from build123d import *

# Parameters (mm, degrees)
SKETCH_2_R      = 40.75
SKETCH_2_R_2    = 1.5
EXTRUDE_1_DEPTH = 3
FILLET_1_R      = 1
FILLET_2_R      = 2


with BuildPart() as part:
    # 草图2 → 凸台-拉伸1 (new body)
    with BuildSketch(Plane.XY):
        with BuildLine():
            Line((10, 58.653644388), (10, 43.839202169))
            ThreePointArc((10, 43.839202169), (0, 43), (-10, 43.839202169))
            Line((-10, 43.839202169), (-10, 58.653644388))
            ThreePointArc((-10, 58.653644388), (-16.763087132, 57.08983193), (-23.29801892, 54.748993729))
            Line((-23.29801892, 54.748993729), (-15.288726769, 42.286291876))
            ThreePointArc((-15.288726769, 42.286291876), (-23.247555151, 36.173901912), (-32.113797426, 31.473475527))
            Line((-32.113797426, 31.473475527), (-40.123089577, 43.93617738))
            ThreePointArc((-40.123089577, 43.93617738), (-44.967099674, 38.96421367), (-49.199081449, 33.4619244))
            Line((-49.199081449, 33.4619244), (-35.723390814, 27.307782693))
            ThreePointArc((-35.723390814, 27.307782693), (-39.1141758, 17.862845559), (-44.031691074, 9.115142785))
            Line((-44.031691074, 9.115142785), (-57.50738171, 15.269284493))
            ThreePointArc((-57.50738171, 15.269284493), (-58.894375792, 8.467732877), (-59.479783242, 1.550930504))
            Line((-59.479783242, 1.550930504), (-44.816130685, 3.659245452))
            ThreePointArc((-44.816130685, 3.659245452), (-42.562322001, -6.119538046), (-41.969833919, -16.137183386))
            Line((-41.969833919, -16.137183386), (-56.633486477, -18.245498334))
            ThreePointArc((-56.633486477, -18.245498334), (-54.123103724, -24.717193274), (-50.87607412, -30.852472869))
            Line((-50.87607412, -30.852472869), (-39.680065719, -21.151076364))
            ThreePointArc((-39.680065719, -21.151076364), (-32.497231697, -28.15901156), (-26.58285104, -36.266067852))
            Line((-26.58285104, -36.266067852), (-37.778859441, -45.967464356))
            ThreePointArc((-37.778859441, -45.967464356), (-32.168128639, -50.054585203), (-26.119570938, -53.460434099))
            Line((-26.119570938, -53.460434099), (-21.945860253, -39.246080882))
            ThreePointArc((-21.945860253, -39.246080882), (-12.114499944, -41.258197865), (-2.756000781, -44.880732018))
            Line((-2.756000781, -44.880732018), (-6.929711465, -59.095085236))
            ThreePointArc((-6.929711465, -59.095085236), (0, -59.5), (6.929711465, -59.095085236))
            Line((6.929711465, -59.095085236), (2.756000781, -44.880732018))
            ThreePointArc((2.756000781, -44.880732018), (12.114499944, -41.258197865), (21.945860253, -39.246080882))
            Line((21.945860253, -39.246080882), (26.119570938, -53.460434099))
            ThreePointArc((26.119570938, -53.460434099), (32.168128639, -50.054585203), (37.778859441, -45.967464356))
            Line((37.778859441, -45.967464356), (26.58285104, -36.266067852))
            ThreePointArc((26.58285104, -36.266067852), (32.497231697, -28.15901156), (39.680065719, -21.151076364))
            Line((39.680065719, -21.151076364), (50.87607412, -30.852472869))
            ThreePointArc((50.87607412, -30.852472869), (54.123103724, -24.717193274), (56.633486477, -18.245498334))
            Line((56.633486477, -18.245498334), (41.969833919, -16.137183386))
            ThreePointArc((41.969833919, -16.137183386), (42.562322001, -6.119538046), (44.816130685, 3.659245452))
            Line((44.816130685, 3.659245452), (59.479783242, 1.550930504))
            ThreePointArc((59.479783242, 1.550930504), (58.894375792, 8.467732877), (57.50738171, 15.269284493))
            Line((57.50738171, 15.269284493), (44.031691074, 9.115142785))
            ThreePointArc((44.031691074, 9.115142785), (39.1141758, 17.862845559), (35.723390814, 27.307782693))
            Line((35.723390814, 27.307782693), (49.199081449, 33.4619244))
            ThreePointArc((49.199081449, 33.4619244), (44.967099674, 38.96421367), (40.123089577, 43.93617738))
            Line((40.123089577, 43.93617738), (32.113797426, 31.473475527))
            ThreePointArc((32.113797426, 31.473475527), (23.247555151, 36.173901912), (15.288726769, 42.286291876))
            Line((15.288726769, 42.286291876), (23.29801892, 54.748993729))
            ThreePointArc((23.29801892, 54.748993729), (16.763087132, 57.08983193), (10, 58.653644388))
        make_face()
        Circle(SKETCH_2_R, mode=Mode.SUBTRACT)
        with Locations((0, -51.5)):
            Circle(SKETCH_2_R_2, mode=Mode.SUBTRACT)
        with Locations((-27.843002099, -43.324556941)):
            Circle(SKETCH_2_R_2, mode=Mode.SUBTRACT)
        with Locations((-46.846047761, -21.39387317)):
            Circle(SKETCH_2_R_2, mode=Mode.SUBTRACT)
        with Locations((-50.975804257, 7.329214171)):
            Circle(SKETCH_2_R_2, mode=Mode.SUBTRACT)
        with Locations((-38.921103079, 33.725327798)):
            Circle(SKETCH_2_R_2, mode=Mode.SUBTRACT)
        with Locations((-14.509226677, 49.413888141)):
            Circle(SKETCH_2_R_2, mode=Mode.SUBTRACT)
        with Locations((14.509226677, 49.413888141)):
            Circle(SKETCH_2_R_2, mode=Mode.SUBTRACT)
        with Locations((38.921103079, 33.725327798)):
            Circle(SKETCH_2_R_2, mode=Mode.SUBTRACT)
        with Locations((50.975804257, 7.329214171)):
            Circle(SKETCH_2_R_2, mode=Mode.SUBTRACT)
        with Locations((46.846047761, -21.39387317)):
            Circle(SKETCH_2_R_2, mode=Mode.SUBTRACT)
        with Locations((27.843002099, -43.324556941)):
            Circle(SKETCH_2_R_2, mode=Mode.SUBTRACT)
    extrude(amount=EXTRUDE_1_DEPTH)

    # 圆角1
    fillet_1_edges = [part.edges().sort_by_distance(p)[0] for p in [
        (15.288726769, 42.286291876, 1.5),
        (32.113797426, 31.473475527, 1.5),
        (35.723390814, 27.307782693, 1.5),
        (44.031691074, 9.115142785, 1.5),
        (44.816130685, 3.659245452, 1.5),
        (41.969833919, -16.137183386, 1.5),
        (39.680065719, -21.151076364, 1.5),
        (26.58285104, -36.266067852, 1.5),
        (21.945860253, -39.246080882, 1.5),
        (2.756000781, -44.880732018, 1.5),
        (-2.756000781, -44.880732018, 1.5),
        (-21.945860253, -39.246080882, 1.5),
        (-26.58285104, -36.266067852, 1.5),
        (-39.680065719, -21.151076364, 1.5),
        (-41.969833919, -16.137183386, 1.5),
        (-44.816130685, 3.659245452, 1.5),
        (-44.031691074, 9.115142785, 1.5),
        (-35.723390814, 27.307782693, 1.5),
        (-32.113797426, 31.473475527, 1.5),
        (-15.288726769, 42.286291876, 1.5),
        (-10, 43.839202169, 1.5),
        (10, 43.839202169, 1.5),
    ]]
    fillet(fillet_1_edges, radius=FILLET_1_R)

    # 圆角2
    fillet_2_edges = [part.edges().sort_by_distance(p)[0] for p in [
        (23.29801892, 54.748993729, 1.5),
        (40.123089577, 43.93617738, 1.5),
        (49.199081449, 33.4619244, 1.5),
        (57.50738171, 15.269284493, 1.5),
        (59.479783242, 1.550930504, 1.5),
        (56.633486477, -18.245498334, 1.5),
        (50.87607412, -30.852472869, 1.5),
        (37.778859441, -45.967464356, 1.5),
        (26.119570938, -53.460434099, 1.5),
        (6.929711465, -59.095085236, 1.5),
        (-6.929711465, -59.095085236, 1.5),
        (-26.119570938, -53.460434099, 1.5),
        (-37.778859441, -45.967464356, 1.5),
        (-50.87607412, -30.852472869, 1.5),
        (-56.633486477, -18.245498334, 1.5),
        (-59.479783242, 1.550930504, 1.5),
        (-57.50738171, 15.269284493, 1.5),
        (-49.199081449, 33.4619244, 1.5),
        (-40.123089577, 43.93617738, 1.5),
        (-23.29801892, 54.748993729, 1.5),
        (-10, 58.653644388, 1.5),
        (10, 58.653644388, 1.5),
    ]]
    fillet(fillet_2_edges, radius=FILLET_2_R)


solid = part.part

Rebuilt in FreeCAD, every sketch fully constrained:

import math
import FreeCAD as App
import Part
import Sketcher

V = App.Vector
Q = App.Units.Quantity


def edges_at(feature, points):
    """Names of the edges that pass closest to the given points."""
    edges = feature.Shape.Edges
    near = lambda p: min(range(len(edges)), key=lambda i: edges[i].distToShape(Part.Vertex(*p))[0])
    return sorted({f"Edge{near(p) + 1}" for p in points})

doc = App.newDocument("Part")
params = doc.addObject("Spreadsheet::Sheet", "Params")
for row, (alias, value) in enumerate([
    ("sketch1_diameter", "3 mm"),
    ("sketch1_radius", "60 mm"),
    ("sketch1_diameter2", "81.5 mm"),
    ("sketch1_radius2", "59.5 mm"),
    ("pad1_length", "3 mm"),
    ("fillet_radius", "1 mm"),
    ("fillet2_radius", "2 mm"),
], start=1):
    params.set(f"A{row}", alias)
    params.set(f"B{row}", "=" + value)
    params.setAlias(f"B{row}", alias)

body = doc.addObject("PartDesign::Body", "Body")

# Sketch on XY plane
sketch1 = body.newObject("Sketcher::SketchObject", "Sketch")
sketch1.AttachmentSupport = (doc.getObject("XY_Plane"), [""])
sketch1.MapMode = "FlatFace"
sketch1.addGeometry([
    Part.LineSegment(V(10, 58.7, 0), V(10, 43.8, 0)),  # 0
    Part.ArcOfCircle(Part.Circle(V(0, 103, 0), V(0, 0, 1), 60), math.radians(-99.59), math.radians(-80.41)),  # 1
    Part.LineSegment(V(-10, 43.8, 0), V(-10, 58.7, 0)),  # 2
    Part.ArcOfCircle(Part.Circle(V(0, 0, 0), V(0, 0, 1), 59.5), math.radians(99.68), math.radians(113.05)),  # 3
    Part.LineSegment(V(-23.3, 54.7, 0), V(-15.3, 42.3, 0)),  # 4
    Part.ArcOfCircle(Part.Circle(V(-55.7, 86.6, 0), V(0, 0, 1), 60), math.radians(-66.87), math.radians(-47.68)),  # 5
    Part.LineSegment(V(-32.1, 31.5, 0), V(-40.1, 43.9, 0)),  # 6
    Part.ArcOfCircle(Part.Circle(V(0, 0, 0), V(0, 0, 1), 59.5), math.radians(132.4), math.radians(145.78)),  # 7
    Part.LineSegment(V(-49.2, 33.5, 0), V(-35.7, 27.3, 0)),  # 8
    Part.ArcOfCircle(Part.Circle(V(-93.7, 42.8, 0), V(0, 0, 1), 60), math.radians(-34.14), math.radians(-14.95)),  # 9
    Part.LineSegment(V(-44, 9.1, 0), V(-57.5, 15.3, 0)),  # 10
    Part.ArcOfCircle(Part.Circle(V(0, 0, 0), V(0, 0, 1), 59.5), math.radians(165.13), math.radians(178.51)),  # 11
    Part.LineSegment(V(-59.5, 1.6, 0), V(-44.8, 3.7, 0)),  # 12
    Part.ArcOfCircle(Part.Circle(V(-102, -14.7, 0), V(0, 0, 1), 60), math.radians(-1.41), math.radians(17.78)),  # 13
    Part.LineSegment(V(-42, -16.1, 0), V(-56.6, -18.2, 0)),  # 14
    Part.ArcOfCircle(Part.Circle(V(0, 0, 0), V(0, 0, 1), 59.5), math.radians(-162.14), math.radians(-148.77)),  # 15
    Part.LineSegment(V(-50.9, -30.9, 0), V(-39.7, -21.2, 0)),  # 16
    Part.ArcOfCircle(Part.Circle(V(-77.8, -67.5, 0), V(0, 0, 1), 60), math.radians(31.32), math.radians(50.5)),  # 17
    Part.LineSegment(V(-26.6, -36.3, 0), V(-37.8, -46, 0)),  # 18
    Part.ArcOfCircle(Part.Circle(V(0, 0, 0), V(0, 0, 1), 59.5), math.radians(-129.42), math.radians(-116.04)),  # 19
    Part.LineSegment(V(-26.1, -53.5, 0), V(-21.9, -39.2, 0)),  # 20
    Part.ArcOfCircle(Part.Circle(V(-29, -98.8, 0), V(0, 0, 1), 60), math.radians(64.04), math.radians(83.23)),  # 21
    Part.LineSegment(V(-2.8, -44.9, 0), V(-6.9, -59.1, 0)),  # 22
    Part.ArcOfCircle(Part.Circle(V(0, 0, 0), V(0, 0, 1), 59.5), math.radians(-96.69), math.radians(-83.31)),  # 23
    Part.LineSegment(V(6.9, -59.1, 0), V(2.8, -44.9, 0)),  # 24
    Part.ArcOfCircle(Part.Circle(V(29, -98.8, 0), V(0, 0, 1), 60), math.radians(96.77), math.radians(115.96)),  # 25
    Part.LineSegment(V(21.9, -39.2, 0), V(26.1, -53.5, 0)),  # 26
    Part.ArcOfCircle(Part.Circle(V(0, 0, 0), V(0, 0, 1), 59.5), math.radians(-63.96), math.radians(-50.58)),  # 27
    Part.LineSegment(V(37.8, -46, 0), V(26.6, -36.3, 0)),  # 28
    Part.ArcOfCircle(Part.Circle(V(77.8, -67.5, 0), V(0, 0, 1), 60), math.radians(129.5), math.radians(148.68)),  # 29
    Part.LineSegment(V(39.7, -21.2, 0), V(50.9, -30.9, 0)),  # 30
    Part.ArcOfCircle(Part.Circle(V(0, 0, 0), V(0, 0, 1), 59.5), math.radians(-31.23), math.radians(-17.86)),  # 31
    Part.LineSegment(V(56.6, -18.2, 0), V(42, -16.1, 0)),  # 32
    Part.ArcOfCircle(Part.Circle(V(102, -14.7, 0), V(0, 0, 1), 60), math.radians(162.22), math.radians(181.41)),  # 33
    Part.LineSegment(V(44.8, 3.7, 0), V(59.5, 1.6, 0)),  # 34
    Part.ArcOfCircle(Part.Circle(V(0, 0, 0), V(0, 0, 1), 59.5), math.radians(1.49), math.radians(14.87)),  # 35
    Part.LineSegment(V(57.5, 15.3, 0), V(44, 9.1, 0)),  # 36
    Part.ArcOfCircle(Part.Circle(V(93.7, 42.8, 0), V(0, 0, 1), 60), math.radians(-165.05), math.radians(-145.86)),  # 37
    Part.LineSegment(V(35.7, 27.3, 0), V(49.2, 33.5, 0)),  # 38
    Part.ArcOfCircle(Part.Circle(V(0, 0, 0), V(0, 0, 1), 59.5), math.radians(34.22), math.radians(47.6)),  # 39
    Part.LineSegment(V(40.1, 43.9, 0), V(32.1, 31.5, 0)),  # 40
    Part.ArcOfCircle(Part.Circle(V(55.7, 86.6, 0), V(0, 0, 1), 60), math.radians(-132.32), math.radians(-113.13)),  # 41
    Part.LineSegment(V(15.3, 42.3, 0), V(23.3, 54.7, 0)),  # 42
    Part.ArcOfCircle(Part.Circle(V(0, 0, 0), V(0, 0, 1), 59.5), math.radians(66.95), math.radians(80.32)),  # 43
    Part.Circle(V(-27.8, -43.3, 0), V(0, 0, 1), 1.5),  # 44
    Part.Circle(V(-46.8, -21.4, 0), V(0, 0, 1), 1.5),  # 45
    Part.Circle(V(0, -51.5, 0), V(0, 0, 1), 1.5),  # 46
    Part.Circle(V(27.8, -43.3, 0), V(0, 0, 1), 1.5),  # 47
    Part.Circle(V(46.8, -21.4, 0), V(0, 0, 1), 1.5),  # 48
    Part.Circle(V(-51, 7.3, 0), V(0, 0, 1), 1.5),  # 49
    Part.Circle(V(-38.9, 33.7, 0), V(0, 0, 1), 1.5),  # 50
    Part.Circle(V(-14.5, 49.4, 0), V(0, 0, 1), 1.5),  # 51
    Part.Circle(V(0, 0, 0), V(0, 0, 1), 40.8),  # 52
    Part.Circle(V(51, 7.3, 0), V(0, 0, 1), 1.5),  # 53
    Part.Circle(V(14.5, 49.4, 0), V(0, 0, 1), 1.5),  # 54
    Part.Circle(V(38.9, 33.7, 0), V(0, 0, 1), 1.5),  # 55
], False)
sketch1.addConstraint([
    Sketcher.Constraint("Coincident", 0, 2, 1, 2),
    Sketcher.Constraint("Coincident", 1, 1, 2, 1),
    Sketcher.Constraint("Coincident", 2, 2, 3, 1),
    Sketcher.Constraint("Coincident", 3, 2, 4, 1),
    Sketcher.Constraint("Coincident", 4, 2, 5, 2),
    Sketcher.Constraint("Coincident", 5, 1, 6, 1),
    Sketcher.Constraint("Coincident", 6, 2, 7, 1),
    Sketcher.Constraint("Coincident", 7, 2, 8, 1),
    Sketcher.Constraint("Coincident", 8, 2, 9, 2),
    Sketcher.Constraint("Coincident", 9, 1, 10, 1),
    Sketcher.Constraint("Coincident", 10, 2, 11, 1),
    Sketcher.Constraint("Coincident", 11, 2, 12, 1),
    Sketcher.Constraint("Coincident", 12, 2, 13, 2),
    Sketcher.Constraint("Coincident", 13, 1, 14, 1),
    Sketcher.Constraint("Coincident", 14, 2, 15, 1),
    Sketcher.Constraint("Coincident", 15, 2, 16, 1),
    Sketcher.Constraint("Coincident", 16, 2, 17, 2),
    Sketcher.Constraint("Coincident", 17, 1, 18, 1),
    Sketcher.Constraint("Coincident", 18, 2, 19, 1),
    Sketcher.Constraint("Coincident", 19, 2, 20, 1),
    Sketcher.Constraint("Coincident", 20, 2, 21, 2),
    Sketcher.Constraint("Coincident", 21, 1, 22, 1),
    Sketcher.Constraint("Coincident", 22, 2, 23, 1),
    Sketcher.Constraint("Coincident", 23, 2, 24, 1),
    Sketcher.Constraint("Coincident", 24, 2, 25, 2),
    Sketcher.Constraint("Coincident", 25, 1, 26, 1),
    Sketcher.Constraint("Coincident", 26, 2, 27, 1),
    Sketcher.Constraint("Coincident", 27, 2, 28, 1),
    Sketcher.Constraint("Coincident", 28, 2, 29, 2),
    Sketcher.Constraint("Coincident", 29, 1, 30, 1),
    Sketcher.Constraint("Coincident", 30, 2, 31, 1),
    Sketcher.Constraint("Coincident", 31, 2, 32, 1),
    Sketcher.Constraint("Coincident", 32, 2, 33, 2),
    Sketcher.Constraint("Coincident", 33, 1, 34, 1),
    Sketcher.Constraint("Coincident", 34, 2, 35, 1),
    Sketcher.Constraint("Coincident", 35, 2, 36, 1),
    Sketcher.Constraint("Coincident", 36, 2, 37, 2),
    Sketcher.Constraint("Coincident", 37, 1, 38, 1),
    Sketcher.Constraint("Coincident", 38, 2, 39, 1),
    Sketcher.Constraint("Coincident", 39, 2, 40, 1),
    Sketcher.Constraint("Coincident", 40, 2, 41, 2),
    Sketcher.Constraint("Coincident", 41, 1, 42, 1),
    Sketcher.Constraint("Coincident", 42, 2, 43, 1),
    Sketcher.Constraint("Coincident", 43, 2, 0, 1),
    Sketcher.Constraint("Vertical", 0),
    Sketcher.Constraint("Vertical", 2),
    Sketcher.Constraint("Coincident", 3, 3, -1, 1),
    Sketcher.Constraint("Coincident", 7, 3, -1, 1),
    Sketcher.Constraint("Coincident", 11, 3, -1, 1),
    Sketcher.Constraint("Coincident", 15, 3, -1, 1),
    Sketcher.Constraint("Coincident", 19, 3, -1, 1),
    Sketcher.Constraint("Coincident", 23, 3, -1, 1),
    Sketcher.Constraint("Coincident", 27, 3, -1, 1),
    Sketcher.Constraint("Coincident", 31, 3, -1, 1),
    Sketcher.Constraint("Coincident", 35, 3, -1, 1),
    Sketcher.Constraint("Coincident", 39, 3, -1, 1),
    Sketcher.Constraint("Coincident", 43, 3, -1, 1),
    Sketcher.Constraint("Coincident", 52, 3, -1, 1),
    Sketcher.Constraint("Equal", 1, 5),
    Sketcher.Constraint("Equal", 3, 7),
    Sketcher.Constraint("Equal", 5, 9),
    Sketcher.Constraint("Equal", 7, 11),
    Sketcher.Constraint("Equal", 9, 13),
    Sketcher.Constraint("Equal", 11, 15),
    Sketcher.Constraint("Equal", 13, 17),
    Sketcher.Constraint("Equal", 15, 19),
    Sketcher.Constraint("Equal", 17, 21),
    Sketcher.Constraint("Equal", 19, 23),
    Sketcher.Constraint("Equal", 21, 25),
    Sketcher.Constraint("Equal", 23, 27),
    Sketcher.Constraint("Equal", 25, 29),
    Sketcher.Constraint("Equal", 27, 31),
    Sketcher.Constraint("Equal", 29, 33),
    Sketcher.Constraint("Equal", 31, 35),
    Sketcher.Constraint("Equal", 33, 37),
    Sketcher.Constraint("Equal", 35, 39),
    Sketcher.Constraint("Equal", 37, 41),
    Sketcher.Constraint("Equal", 39, 43),
    Sketcher.Constraint("Equal", 44, 45),
    Sketcher.Constraint("Equal", 45, 46),
    Sketcher.Constraint("Equal", 46, 47),
    Sketcher.Constraint("Equal", 47, 48),
    Sketcher.Constraint("Equal", 48, 49),
    Sketcher.Constraint("Equal", 49, 50),
    Sketcher.Constraint("Equal", 50, 51),
    Sketcher.Constraint("Equal", 51, 53),
    Sketcher.Constraint("Equal", 53, 54),
    Sketcher.Constraint("Equal", 54, 55),
    Sketcher.Constraint("Symmetric", 21, 3, 25, 3, -2),
    Sketcher.Constraint("Symmetric", 17, 3, 29, 3, -2),
    Sketcher.Constraint("Symmetric", 13, 3, 33, 3, -2),
    Sketcher.Constraint("Symmetric", 9, 3, 37, 3, -2),
    Sketcher.Constraint("Symmetric", 5, 3, 41, 3, -2),
    Sketcher.Constraint("Symmetric", 44, 3, 47, 3, -2),
    Sketcher.Constraint("Symmetric", 45, 3, 48, 3, -2),
    Sketcher.Constraint("Symmetric", 49, 3, 53, 3, -2),
    Sketcher.Constraint("Symmetric", 51, 3, 54, 3, -2),
    Sketcher.Constraint("Symmetric", 50, 3, 55, 3, -2),
    Sketcher.Constraint("Symmetric", 0, 2, 1, 1, -2),
    Sketcher.Constraint("PointOnObject", 46, 3, -2),
    Sketcher.Constraint("Parallel", 4, 6),
    Sketcher.Constraint("Parallel", 8, 10),
    Sketcher.Constraint("Parallel", 12, 14),
    Sketcher.Constraint("Parallel", 16, 18),
    Sketcher.Constraint("Parallel", 20, 22),
    Sketcher.Constraint("Parallel", 24, 26),
    Sketcher.Constraint("Parallel", 28, 30),
    Sketcher.Constraint("Parallel", 32, 34),
    Sketcher.Constraint("Parallel", 36, 38),
    Sketcher.Constraint("Parallel", 40, 42),
    Sketcher.Constraint("Horizontal", 22, 2, 23, 2),
    Sketcher.Constraint("Horizontal", 21, 1, 24, 2),
    Sketcher.Constraint("Horizontal", 20, 2, 25, 1),
    Sketcher.Constraint("Horizontal", 18, 2, 27, 2),
    Sketcher.Constraint("Horizontal", 17, 1, 28, 2),
    Sketcher.Constraint("Horizontal", 16, 2, 29, 1),
    Sketcher.Constraint("Horizontal", 14, 2, 31, 2),
    Sketcher.Constraint("Horizontal", 13, 1, 32, 2),
    Sketcher.Constraint("Horizontal", 12, 2, 33, 1),
    Sketcher.Constraint("Horizontal", 10, 2, 35, 2),
    Sketcher.Constraint("Horizontal", 9, 1, 36, 2),
    Sketcher.Constraint("Horizontal", 8, 2, 37, 1),
    Sketcher.Constraint("Horizontal", 6, 2, 39, 2),
    Sketcher.Constraint("Horizontal", 5, 1, 40, 2),
    Sketcher.Constraint("Horizontal", 4, 2, 41, 1),
    Sketcher.Constraint("Equal", 4, 6),
    Sketcher.Constraint("Equal", 6, 8),
    Sketcher.Constraint("Equal", 8, 10),
    Sketcher.Constraint("Equal", 10, 12),
    Sketcher.Constraint("Equal", 12, 14),
    Sketcher.Constraint("Equal", 14, 16),
    Sketcher.Constraint("Equal", 16, 18),
    Sketcher.Constraint("Equal", 18, 20),
    Sketcher.Constraint("Equal", 20, 22),
    Sketcher.Constraint("Diameter", 44, Q("3 mm")),
    Sketcher.Constraint("Radius", 1, Q("60 mm")),
    Sketcher.Constraint("Diameter", 52, Q("81.5 mm")),
    Sketcher.Constraint("Radius", 3, Q("59.5 mm")),
    Sketcher.Constraint("DistanceY", -1, 1, 1, 3, Q("103 mm")),
    Sketcher.Constraint("DistanceX", -1, 1, 0, 2, Q("10 mm")),
    Sketcher.Constraint("DistanceY", 46, 3, -1, 1, Q("51.5 mm")),
    Sketcher.Constraint("DistanceX", 21, 1, -1, 1, Q("2.756001 mm")),
    Sketcher.Constraint("DistanceY", 14, 2, -1, 1, Q("18.245498 mm")),
    Sketcher.Constraint("DistanceX", 13, 3, -1, 1, Q("101.951609 mm")),
    Sketcher.Constraint("DistanceY", 13, 3, -1, 1, Q("14.658428 mm")),
    Sketcher.Constraint("DistanceY", -1, 1, 51, 3, Q("49.413888 mm")),
    Sketcher.Constraint("DistanceX", 3, 2, -1, 1, Q("23.298019 mm")),
    Sketcher.Constraint("DistanceY", -1, 1, 4, 2, Q("42.286292 mm")),
    Sketcher.Constraint("DistanceX", 6, 2, -1, 1, Q("40.12309 mm")),
    Sketcher.Constraint("DistanceX", 7, 2, -1, 1, Q("49.199081 mm")),
    Sketcher.Constraint("DistanceX", 8, 2, -1, 1, Q("35.723391 mm")),
    Sketcher.Constraint("DistanceX", 9, 1, -1, 1, Q("44.031691 mm")),
    Sketcher.Constraint("DistanceY", -1, 1, 11, 2, Q("1.550931 mm")),
    Sketcher.Constraint("DistanceX", 17, 1, -1, 1, Q("26.582851 mm")),
    Sketcher.Constraint("DistanceX", 18, 2, -1, 1, Q("37.778859 mm")),
    Sketcher.Constraint("DistanceX", 19, 2, -1, 1, Q("26.119571 mm")),
    Sketcher.Constraint("DistanceX", 20, 2, -1, 1, Q("21.94586 mm")),
    Sketcher.Constraint("DistanceX", 17, 3, -1, 1, Q("77.842206 mm")),
    Sketcher.Constraint("DistanceX", 44, 3, -1, 1, Q("27.843002 mm")),
    Sketcher.Constraint("DistanceY", 44, 3, -1, 1, Q("43.324557 mm")),
    Sketcher.Constraint("DistanceX", 45, 3, -1, 1, Q("46.846048 mm")),
    Sketcher.Constraint("DistanceY", 45, 3, -1, 1, Q("21.393873 mm")),
    Sketcher.Constraint("DistanceX", 49, 3, -1, 1, Q("50.975804 mm")),
    Sketcher.Constraint("DistanceY", -1, 1, 49, 3, Q("7.329214 mm")),
    Sketcher.Constraint("DistanceX", 50, 3, -1, 1, Q("38.921103 mm")),
    Sketcher.Constraint("DistanceY", -1, 1, 50, 3, Q("33.725328 mm")),
    Sketcher.Constraint("DistanceX", 51, 3, -1, 1, Q("14.509227 mm")),
])
sketch1.setExpression("Constraints[134]", "Params.sketch1_diameter")
sketch1.setExpression("Constraints[135]", "Params.sketch1_radius")
sketch1.setExpression("Constraints[136]", "Params.sketch1_diameter2")
sketch1.setExpression("Constraints[137]", "Params.sketch1_radius2")
pad1 = body.newObject("PartDesign::Pad", "Pad")
pad1.Profile = sketch1
pad1.setExpression("Length", "Params.pad1_length")
doc.recompute()

fillet = body.newObject("PartDesign::Fillet", "Fillet")
fillet.Base = (pad1, edges_at(pad1, [
    (15.289, 42.286, 1.5),
    (32.114, 31.473, 1.5),
    (35.723, 27.308, 1.5),
    (44.032, 9.115, 1.5),
    (44.816, 3.659, 1.5),
    (41.97, -16.137, 1.5),
    (39.68, -21.151, 1.5),
    (26.583, -36.266, 1.5),
    (21.946, -39.246, 1.5),
    (2.756, -44.881, 1.5),
    (-2.756, -44.881, 1.5),
    (-21.946, -39.246, 1.5),
    (-26.583, -36.266, 1.5),
    (-39.68, -21.151, 1.5),
    (-41.97, -16.137, 1.5),
    (-44.816, 3.659, 1.5),
    (-44.032, 9.115, 1.5),
    (-35.723, 27.308, 1.5),
    (-32.114, 31.473, 1.5),
    (-15.289, 42.286, 1.5),
    (-10, 43.839, 1.5),
    (10, 43.839, 1.5),
]))
fillet.setExpression("Radius", "Params.fillet_radius")
doc.recompute()

fillet2 = body.newObject("PartDesign::Fillet", "Fillet001")
fillet2.Base = (fillet, edges_at(fillet, [
    (23.298, 54.749, 1.5),
    (40.123, 43.936, 1.5),
    (49.199, 33.462, 1.5),
    (57.507, 15.269, 1.5),
    (59.48, 1.551, 1.5),
    (56.633, -18.245, 1.5),
    (50.876, -30.852, 1.5),
    (37.779, -45.967, 1.5),
    (26.12, -53.46, 1.5),
    (6.93, -59.095, 1.5),
    (-6.93, -59.095, 1.5),
    (-26.12, -53.46, 1.5),
    (-37.779, -45.967, 1.5),
    (-50.876, -30.852, 1.5),
    (-56.633, -18.245, 1.5),
    (-59.48, 1.551, 1.5),
    (-57.507, 15.269, 1.5),
    (-49.199, 33.462, 1.5),
    (-40.123, 43.936, 1.5),
    (-23.298, 54.749, 1.5),
    (-10, 58.654, 1.5),
    (10, 58.654, 1.5),
]))
fillet2.setExpression("Radius", "Params.fillet2_radius")

doc.recompute()
